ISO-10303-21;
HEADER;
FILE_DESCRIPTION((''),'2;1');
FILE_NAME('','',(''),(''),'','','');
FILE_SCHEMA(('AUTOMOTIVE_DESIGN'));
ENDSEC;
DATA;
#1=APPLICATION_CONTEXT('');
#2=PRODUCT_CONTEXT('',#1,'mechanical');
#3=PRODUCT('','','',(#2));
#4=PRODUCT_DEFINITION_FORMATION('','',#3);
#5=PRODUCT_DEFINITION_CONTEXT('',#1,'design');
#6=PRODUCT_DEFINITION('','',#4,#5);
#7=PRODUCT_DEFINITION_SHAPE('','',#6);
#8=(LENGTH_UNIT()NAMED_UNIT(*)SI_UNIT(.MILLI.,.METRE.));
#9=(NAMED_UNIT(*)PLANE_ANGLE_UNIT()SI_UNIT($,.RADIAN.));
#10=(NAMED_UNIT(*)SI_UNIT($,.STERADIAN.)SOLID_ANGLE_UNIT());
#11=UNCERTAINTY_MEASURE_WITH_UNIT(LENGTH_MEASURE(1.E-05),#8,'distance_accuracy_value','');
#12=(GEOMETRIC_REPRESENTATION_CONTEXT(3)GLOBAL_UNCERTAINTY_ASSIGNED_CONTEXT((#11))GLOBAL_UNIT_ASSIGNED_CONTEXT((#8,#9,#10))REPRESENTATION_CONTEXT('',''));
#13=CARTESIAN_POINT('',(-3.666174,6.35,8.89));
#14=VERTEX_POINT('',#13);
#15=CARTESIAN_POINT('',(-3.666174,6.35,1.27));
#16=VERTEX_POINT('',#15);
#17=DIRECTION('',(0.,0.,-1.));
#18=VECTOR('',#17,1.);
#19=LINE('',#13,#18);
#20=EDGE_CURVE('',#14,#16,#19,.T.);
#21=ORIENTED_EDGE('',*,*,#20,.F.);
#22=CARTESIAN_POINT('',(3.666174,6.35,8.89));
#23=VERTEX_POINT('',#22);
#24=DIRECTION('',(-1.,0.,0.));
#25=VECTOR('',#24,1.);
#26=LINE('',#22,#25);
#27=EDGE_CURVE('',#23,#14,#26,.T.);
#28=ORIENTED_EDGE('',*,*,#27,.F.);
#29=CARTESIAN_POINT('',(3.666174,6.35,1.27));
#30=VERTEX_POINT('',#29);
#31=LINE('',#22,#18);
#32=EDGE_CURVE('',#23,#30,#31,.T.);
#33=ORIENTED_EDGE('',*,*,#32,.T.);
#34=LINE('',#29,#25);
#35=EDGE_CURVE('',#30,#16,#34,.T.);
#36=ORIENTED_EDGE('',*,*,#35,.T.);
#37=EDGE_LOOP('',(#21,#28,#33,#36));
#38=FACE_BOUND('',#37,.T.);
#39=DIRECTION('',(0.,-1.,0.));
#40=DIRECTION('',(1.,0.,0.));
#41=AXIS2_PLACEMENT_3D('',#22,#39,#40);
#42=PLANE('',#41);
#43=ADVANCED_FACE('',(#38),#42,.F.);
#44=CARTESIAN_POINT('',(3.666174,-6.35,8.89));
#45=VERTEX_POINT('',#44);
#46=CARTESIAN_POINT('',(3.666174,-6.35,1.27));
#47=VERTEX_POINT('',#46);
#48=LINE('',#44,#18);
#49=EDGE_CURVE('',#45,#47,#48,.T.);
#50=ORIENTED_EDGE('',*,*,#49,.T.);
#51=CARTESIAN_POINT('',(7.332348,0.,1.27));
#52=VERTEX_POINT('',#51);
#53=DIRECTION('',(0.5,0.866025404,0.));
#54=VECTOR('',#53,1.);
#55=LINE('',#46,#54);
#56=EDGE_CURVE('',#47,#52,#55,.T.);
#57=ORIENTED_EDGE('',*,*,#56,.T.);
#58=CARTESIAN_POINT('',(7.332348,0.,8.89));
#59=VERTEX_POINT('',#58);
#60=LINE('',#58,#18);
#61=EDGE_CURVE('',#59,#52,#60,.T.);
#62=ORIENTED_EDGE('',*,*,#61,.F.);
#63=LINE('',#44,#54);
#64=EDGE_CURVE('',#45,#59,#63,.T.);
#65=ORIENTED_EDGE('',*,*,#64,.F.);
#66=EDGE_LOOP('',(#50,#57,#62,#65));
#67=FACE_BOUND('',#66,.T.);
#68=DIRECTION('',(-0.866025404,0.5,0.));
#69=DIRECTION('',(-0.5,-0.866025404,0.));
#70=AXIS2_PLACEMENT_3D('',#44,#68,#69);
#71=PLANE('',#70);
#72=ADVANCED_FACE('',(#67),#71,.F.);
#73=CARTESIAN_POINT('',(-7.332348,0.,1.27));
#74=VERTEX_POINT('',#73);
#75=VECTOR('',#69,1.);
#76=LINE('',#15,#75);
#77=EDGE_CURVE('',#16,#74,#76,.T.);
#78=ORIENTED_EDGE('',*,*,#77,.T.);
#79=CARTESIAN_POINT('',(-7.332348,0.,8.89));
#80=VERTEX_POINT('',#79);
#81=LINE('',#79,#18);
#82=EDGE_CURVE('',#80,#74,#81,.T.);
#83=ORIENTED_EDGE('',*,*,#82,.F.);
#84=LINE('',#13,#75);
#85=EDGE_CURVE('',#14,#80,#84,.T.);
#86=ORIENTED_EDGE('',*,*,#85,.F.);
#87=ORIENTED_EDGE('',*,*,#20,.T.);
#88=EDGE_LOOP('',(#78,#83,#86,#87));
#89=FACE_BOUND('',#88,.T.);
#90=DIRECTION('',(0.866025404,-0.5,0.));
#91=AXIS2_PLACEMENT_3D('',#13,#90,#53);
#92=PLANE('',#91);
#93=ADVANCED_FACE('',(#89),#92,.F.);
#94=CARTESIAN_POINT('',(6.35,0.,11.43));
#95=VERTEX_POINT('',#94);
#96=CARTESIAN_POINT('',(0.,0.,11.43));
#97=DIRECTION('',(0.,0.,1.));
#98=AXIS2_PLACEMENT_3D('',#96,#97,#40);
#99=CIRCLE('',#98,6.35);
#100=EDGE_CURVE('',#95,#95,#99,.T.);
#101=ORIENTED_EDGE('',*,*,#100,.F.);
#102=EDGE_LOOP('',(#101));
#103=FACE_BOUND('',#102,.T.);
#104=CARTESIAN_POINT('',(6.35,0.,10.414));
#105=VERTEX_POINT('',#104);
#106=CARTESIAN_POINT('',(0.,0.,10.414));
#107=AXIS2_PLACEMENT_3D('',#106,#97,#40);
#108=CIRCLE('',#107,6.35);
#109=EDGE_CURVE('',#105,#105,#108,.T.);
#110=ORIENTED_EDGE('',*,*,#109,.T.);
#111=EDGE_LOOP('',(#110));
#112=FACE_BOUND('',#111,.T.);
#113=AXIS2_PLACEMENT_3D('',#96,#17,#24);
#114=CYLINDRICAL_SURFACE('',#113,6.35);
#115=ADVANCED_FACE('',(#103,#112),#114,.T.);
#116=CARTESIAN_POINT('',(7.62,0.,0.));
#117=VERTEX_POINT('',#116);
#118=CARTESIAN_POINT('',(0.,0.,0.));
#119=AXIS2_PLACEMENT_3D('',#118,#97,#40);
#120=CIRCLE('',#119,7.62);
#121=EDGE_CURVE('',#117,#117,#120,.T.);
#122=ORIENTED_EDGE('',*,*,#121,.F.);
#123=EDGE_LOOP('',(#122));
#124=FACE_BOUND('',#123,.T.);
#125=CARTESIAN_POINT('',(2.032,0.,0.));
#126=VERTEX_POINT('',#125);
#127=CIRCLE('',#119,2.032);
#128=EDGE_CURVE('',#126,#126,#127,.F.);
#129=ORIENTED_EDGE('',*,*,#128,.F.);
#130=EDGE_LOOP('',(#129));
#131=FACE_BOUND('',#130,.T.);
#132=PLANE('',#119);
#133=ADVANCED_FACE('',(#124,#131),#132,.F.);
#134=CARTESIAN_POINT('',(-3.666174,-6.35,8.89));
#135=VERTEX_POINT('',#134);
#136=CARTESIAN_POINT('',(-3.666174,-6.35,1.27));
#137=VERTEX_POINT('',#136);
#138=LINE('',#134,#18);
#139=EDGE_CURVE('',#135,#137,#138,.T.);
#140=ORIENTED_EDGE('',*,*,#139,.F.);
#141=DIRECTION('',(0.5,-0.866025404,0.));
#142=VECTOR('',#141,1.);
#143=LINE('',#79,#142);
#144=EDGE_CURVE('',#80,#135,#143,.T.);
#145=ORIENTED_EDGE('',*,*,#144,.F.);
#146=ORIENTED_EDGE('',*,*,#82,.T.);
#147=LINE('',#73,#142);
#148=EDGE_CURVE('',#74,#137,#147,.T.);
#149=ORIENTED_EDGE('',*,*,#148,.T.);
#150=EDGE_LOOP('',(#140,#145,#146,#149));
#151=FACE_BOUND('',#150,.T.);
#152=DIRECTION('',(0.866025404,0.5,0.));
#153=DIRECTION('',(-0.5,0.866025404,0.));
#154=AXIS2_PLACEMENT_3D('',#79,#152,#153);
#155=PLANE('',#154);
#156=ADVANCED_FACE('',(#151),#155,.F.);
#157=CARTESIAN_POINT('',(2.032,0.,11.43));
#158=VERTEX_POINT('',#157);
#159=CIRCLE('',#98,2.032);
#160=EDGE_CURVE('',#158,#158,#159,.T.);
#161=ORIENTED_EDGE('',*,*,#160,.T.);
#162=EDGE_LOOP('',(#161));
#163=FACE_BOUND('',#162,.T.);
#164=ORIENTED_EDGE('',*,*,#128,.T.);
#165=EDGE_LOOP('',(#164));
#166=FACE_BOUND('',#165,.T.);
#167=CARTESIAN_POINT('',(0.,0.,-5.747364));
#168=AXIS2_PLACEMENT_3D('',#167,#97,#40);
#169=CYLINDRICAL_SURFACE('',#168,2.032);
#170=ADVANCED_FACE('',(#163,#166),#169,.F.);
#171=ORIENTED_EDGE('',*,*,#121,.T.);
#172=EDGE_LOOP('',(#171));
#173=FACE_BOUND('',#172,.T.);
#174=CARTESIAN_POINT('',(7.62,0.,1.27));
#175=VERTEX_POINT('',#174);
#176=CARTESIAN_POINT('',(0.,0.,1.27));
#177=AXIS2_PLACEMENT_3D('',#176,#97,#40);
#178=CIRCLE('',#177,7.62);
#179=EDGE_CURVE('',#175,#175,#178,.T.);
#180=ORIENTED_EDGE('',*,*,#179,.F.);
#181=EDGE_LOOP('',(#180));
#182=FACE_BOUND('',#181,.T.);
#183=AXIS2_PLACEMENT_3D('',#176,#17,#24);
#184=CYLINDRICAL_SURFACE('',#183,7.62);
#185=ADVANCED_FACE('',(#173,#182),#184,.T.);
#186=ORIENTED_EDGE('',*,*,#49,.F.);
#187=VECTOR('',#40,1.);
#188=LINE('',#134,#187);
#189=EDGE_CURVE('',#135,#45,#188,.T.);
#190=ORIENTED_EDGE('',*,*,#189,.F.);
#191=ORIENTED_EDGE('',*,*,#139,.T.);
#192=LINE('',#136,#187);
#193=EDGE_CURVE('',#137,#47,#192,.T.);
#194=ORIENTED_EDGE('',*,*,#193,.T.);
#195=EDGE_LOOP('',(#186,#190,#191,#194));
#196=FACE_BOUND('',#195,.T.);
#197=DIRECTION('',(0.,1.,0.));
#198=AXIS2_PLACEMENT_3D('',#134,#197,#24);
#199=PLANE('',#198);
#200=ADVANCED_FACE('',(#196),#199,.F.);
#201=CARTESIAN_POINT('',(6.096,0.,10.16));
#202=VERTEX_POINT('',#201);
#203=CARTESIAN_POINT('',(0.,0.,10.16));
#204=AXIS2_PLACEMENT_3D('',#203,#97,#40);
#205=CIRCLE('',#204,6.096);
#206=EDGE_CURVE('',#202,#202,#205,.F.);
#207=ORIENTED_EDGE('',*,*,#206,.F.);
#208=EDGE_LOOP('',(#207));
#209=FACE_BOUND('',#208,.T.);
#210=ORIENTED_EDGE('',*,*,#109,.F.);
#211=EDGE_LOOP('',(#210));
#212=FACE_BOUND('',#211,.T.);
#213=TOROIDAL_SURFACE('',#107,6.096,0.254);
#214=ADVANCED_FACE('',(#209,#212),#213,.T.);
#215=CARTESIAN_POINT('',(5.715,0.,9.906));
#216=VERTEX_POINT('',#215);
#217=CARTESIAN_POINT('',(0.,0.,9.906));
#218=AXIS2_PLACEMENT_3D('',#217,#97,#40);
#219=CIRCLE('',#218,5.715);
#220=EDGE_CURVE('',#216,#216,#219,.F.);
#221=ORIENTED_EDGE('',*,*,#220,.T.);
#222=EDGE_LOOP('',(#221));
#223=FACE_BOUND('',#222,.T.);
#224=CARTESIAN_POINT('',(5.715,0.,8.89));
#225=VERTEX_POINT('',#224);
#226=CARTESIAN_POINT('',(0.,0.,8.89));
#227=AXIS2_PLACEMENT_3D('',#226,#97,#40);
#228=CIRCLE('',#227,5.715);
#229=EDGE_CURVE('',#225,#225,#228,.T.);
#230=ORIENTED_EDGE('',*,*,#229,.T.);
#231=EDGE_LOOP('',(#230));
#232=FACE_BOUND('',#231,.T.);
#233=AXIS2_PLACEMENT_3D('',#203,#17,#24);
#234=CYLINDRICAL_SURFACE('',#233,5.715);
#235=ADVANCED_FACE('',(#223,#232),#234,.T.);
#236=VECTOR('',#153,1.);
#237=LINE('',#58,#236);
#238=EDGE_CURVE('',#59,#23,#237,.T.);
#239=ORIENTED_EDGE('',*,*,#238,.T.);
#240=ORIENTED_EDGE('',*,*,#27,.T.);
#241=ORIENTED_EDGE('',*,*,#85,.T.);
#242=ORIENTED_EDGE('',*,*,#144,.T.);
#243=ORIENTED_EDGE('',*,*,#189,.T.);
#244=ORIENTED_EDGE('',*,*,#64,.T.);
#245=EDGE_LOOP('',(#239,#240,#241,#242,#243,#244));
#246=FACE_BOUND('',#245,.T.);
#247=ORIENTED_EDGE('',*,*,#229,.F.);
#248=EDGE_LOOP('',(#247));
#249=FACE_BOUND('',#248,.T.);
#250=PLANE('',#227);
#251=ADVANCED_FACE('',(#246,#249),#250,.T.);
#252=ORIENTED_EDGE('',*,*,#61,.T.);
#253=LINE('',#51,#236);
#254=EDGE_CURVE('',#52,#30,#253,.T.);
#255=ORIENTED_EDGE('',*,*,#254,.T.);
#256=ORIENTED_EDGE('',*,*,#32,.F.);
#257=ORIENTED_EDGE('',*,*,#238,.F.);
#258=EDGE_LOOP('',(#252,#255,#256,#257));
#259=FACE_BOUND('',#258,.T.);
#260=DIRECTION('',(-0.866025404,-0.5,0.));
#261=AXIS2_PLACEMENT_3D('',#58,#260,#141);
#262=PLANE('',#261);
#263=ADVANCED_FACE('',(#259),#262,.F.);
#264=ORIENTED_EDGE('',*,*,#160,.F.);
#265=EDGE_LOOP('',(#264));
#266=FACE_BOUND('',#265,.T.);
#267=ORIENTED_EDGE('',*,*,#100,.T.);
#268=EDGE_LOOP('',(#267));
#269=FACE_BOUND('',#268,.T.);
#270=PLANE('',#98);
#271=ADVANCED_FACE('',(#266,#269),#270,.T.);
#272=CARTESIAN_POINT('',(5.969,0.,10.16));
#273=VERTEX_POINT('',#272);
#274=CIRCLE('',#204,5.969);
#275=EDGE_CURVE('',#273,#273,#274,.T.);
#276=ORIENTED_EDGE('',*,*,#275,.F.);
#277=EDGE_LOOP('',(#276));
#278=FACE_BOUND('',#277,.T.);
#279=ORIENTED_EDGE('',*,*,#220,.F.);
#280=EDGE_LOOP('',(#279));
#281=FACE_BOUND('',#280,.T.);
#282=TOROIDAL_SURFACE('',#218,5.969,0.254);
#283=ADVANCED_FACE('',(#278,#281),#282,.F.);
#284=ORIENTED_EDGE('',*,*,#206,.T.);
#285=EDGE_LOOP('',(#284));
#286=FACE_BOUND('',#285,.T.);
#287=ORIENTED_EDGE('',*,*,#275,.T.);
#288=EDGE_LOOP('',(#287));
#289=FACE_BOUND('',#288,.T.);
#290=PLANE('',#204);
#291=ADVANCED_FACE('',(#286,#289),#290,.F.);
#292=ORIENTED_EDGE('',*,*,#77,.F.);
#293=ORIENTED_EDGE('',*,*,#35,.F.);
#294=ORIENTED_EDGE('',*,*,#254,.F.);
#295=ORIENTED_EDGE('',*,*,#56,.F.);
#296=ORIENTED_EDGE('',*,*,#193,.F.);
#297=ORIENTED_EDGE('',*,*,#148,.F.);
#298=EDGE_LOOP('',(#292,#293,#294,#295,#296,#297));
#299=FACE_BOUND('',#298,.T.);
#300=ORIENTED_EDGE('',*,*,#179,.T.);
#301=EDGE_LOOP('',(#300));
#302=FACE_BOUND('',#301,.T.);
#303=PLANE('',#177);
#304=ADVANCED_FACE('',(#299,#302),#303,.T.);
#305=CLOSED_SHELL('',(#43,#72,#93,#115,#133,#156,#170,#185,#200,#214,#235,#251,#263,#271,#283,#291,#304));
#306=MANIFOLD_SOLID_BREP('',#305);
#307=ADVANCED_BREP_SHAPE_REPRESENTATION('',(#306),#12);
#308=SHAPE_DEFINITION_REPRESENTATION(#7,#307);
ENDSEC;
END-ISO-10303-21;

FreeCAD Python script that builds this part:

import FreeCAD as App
import Part
import Sketcher
Q = App.Units.Quantity


def edges_at(feature, points):
    """Names of the edges that pass closest to the given points."""
    edges = feature.Shape.Edges
    near = lambda p: min(range(len(edges)), key=lambda i: edges[i].distToShape(Part.Vertex(*p))[0])
    return sorted({f"Edge{near(p) + 1}" for p in points})


def add_polygon(sketch, points):
    """Adds a closed chain of lines whose ends are joined by coincident constraints."""
    first, n = sketch.GeometryCount, len(points)
    for a, b in zip(points, points[1:] + points[:1]):
        sketch.addGeometry(Part.LineSegment(App.Vector(*a, 0), App.Vector(*b, 0)), False)
    for i in range(n):
        sketch.addConstraint(Sketcher.Constraint("Coincident", first + i, 2, first + (i + 1) % n, 1))

doc = App.newDocument("Part")
params = doc.addObject("Spreadsheet::Sheet", "Params")
for row, (alias, value) in enumerate([
    ("sketch1_diameter", "0.6 in"),
    ("pad1_length", "0.05 in"),
    ("pad2_length", "0.3 in"),
    ("sketch3_diameter", "0.45 in"),
    ("pad3_length", "0.05 in"),
    ("sketch4_diameter", "0.5 in"),
    ("pad4_length", "0.05 in"),
    ("fillet_radius", "0.01 in"),
    ("sketch5_diameter", "0.16 in"),
    ("pocket1_length", "0.45 in"),
], start=1):
    params.set(f"A{row}", alias)
    params.set(f"B{row}", "=" + value)
    params.setAlias(f"B{row}", alias)

body = doc.addObject("PartDesign::Body", "Body")

# Sketch on XY plane
sketch1 = body.newObject("Sketcher::SketchObject", "Sketch")
sketch1.AttachmentSupport = (doc.getObject("XY_Plane"), [""])
sketch1.MapMode = "FlatFace"
sketch1.addGeometry(Part.Circle(App.Vector(0, 0, 0), App.Vector(0, 0, 1), 8), False)
sketch1.addConstraint(Sketcher.Constraint("Coincident", 0, 3, -1, 1))
sketch1.addConstraint(Sketcher.Constraint("Diameter", 0, Q("0.6 in")))
sketch1.setExpression("Constraints[1]", "Params.sketch1_diameter")
pad1 = body.newObject("PartDesign::Pad", "Pad")
pad1.Profile = sketch1
pad1.setExpression("Length", "Params.pad1_length")

# Sketch on XY plane
sketch2 = body.newObject("Sketcher::SketchObject", "Sketch001")
sketch2.AttachmentSupport = (doc.getObject("XY_Plane"), [""])
sketch2.MapMode = "FlatFace"
sketch2.AttachmentOffset = App.Placement(App.Vector(0, 0, 0.05 * 25.4), App.Rotation())
add_polygon(sketch2, [(4, 6), (-4, 6), (-7, 0), (-4, -6), (4, -6), (7, 0)])  # lines 0-5
sketch2.addConstraint(Sketcher.Constraint("Horizontal", 0))
sketch2.addConstraint(Sketcher.Constraint("Horizontal", 3))
sketch2.addConstraint(Sketcher.Constraint("Symmetric", 0, 2, 3, 2, -1, 1))
sketch2.addConstraint(Sketcher.Constraint("Symmetric", 1, 2, 4, 2, -1, 1))
sketch2.addConstraint(Sketcher.Constraint("PointOnObject", 1, 2, -1))
sketch2.addConstraint(Sketcher.Constraint("Parallel", 2, 5))
sketch2.addConstraint(Sketcher.Constraint("Vertical", 0, 2, 2, 2))
sketch2.addConstraint(Sketcher.Constraint("Angle", 1, Q("-120 deg")))
sketch2.addConstraint(Sketcher.Constraint("DistanceY", 2, 2, 0, 2, Q("0.5 in")))
sketch2.addConstraint(Sketcher.Constraint("DistanceX", 0, 2, 0, 1, 7.332348))
pad2 = body.newObject("PartDesign::Pad", "Pad001")
pad2.Profile = sketch2
pad2.setExpression("Length", "Params.pad2_length")

# Sketch on XY plane
sketch3 = body.newObject("Sketcher::SketchObject", "Sketch002")
sketch3.AttachmentSupport = (doc.getObject("XY_Plane"), [""])
sketch3.MapMode = "FlatFace"
sketch3.AttachmentOffset = App.Placement(App.Vector(0, 0, 0.35 * 25.4), App.Rotation())
sketch3.addGeometry(Part.Circle(App.Vector(0, 0, 0), App.Vector(0, 0, 1), 6), False)
sketch3.addConstraint(Sketcher.Constraint("Coincident", 0, 3, -1, 1))
sketch3.addConstraint(Sketcher.Constraint("Diameter", 0, Q("0.45 in")))
sketch3.setExpression("Constraints[1]", "Params.sketch3_diameter")
pad3 = body.newObject("PartDesign::Pad", "Pad002")
pad3.Profile = sketch3
pad3.setExpression("Length", "Params.pad3_length")

# Sketch on XY plane
sketch4 = body.newObject("Sketcher::SketchObject", "Sketch003")
sketch4.AttachmentSupport = (doc.getObject("XY_Plane"), [""])
sketch4.MapMode = "FlatFace"
sketch4.AttachmentOffset = App.Placement(App.Vector(0, 0, 0.4 * 25.4), App.Rotation())
sketch4.addGeometry(Part.Circle(App.Vector(0, 0, 0), App.Vector(0, 0, 1), 6), False)
sketch4.addConstraint(Sketcher.Constraint("Coincident", 0, 3, -1, 1))
sketch4.addConstraint(Sketcher.Constraint("Diameter", 0, Q("0.5 in")))
sketch4.setExpression("Constraints[1]", "Params.sketch4_diameter")
pad4 = body.newObject("PartDesign::Pad", "Pad003")
pad4.Profile = sketch4
pad4.setExpression("Length", "Params.pad4_length")
doc.recompute()

fillet = body.newObject("PartDesign::Fillet", "Fillet")
fillet.Base = (pad4, edges_at(pad4, [(-5.715, 0, 10.16), (-6.35, 0, 10.16)]))
fillet.setExpression("Radius", "Params.fillet_radius")

# Sketch on XY plane
sketch5 = body.newObject("Sketcher::SketchObject", "Sketch004")
sketch5.AttachmentSupport = (doc.getObject("XY_Plane"), [""])
sketch5.MapMode = "FlatFace"
sketch5.AttachmentOffset = App.Placement(App.Vector(0, 0, 0.45 * 25.4), App.Rotation())
sketch5.addGeometry(Part.Circle(App.Vector(0, 0, 0), App.Vector(0, 0, 1), 2), False)
sketch5.addConstraint(Sketcher.Constraint("Coincident", 0, 3, -1, 1))
sketch5.addConstraint(Sketcher.Constraint("Diameter", 0, Q("0.16 in")))
sketch5.setExpression("Constraints[1]", "Params.sketch5_diameter")
pocket1 = body.newObject("PartDesign::Pocket", "Pocket")
pocket1.Profile = sketch5
pocket1.setExpression("Length", "Params.pocket1_length")

doc.recompute()
